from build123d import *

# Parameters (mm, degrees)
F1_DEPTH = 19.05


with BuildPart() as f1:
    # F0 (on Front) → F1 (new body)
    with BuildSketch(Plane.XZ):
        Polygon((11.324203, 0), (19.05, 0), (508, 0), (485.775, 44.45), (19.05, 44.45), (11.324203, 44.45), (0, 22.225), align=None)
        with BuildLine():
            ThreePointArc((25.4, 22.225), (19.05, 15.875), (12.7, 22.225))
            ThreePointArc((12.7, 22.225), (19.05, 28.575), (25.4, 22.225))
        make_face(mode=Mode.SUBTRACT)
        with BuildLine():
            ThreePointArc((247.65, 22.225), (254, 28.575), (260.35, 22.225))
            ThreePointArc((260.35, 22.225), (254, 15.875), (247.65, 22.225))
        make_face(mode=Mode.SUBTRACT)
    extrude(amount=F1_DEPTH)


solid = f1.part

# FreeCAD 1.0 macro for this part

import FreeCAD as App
import Part
import Sketcher
Q = App.Units.Quantity

doc = App.newDocument("Part")
body = doc.addObject("PartDesign::Body", "Body")

sketch1 = body.newObject("Sketcher::SketchObject", "Sketch")
sketch1.AttachmentSupport = (doc.getObject("XZ_Plane"), [""])
sketch1.MapMode = "FlatFace"
sketch1.addGeometry([
    Part.LineSegment(App.Vector(11, 0, 0), App.Vector(508, 0, 0)),
    Part.LineSegment(App.Vector(508, 0, 0), App.Vector(486, 44, 0)),
    Part.LineSegment(App.Vector(486, 44, 0), App.Vector(11, 44, 0)),
    Part.LineSegment(App.Vector(11, 44, 0), App.Vector(0, 22, 0)),
    Part.LineSegment(App.Vector(0, 22, 0), App.Vector(11, 0, 0)),
    Part.Circle(App.Vector(19, 22, 0), App.Vector(0, 0, 1), 6),
    Part.Circle(App.Vector(254, 22, 0), App.Vector(0, 0, 1), 6),
], False)
sketch1.addConstraint([
    Sketcher.Constraint("Coincident", 0, 2, 1, 1),
    Sketcher.Constraint("Coincident", 1, 2, 2, 1),
    Sketcher.Constraint("Coincident", 2, 2, 3, 1),
    Sketcher.Constraint("Coincident", 3, 2, 4, 1),
    Sketcher.Constraint("Coincident", 4, 2, 0, 1),
    Sketcher.Constraint("Horizontal", 0),
    Sketcher.Constraint("Horizontal", 2),
    Sketcher.Constraint("Equal", 5, 6),
    Sketcher.Constraint("PointOnObject", 0, 2, -1),
    Sketcher.Constraint("PointOnObject", 3, 2, -2),
    Sketcher.Constraint("Horizontal", 5, 3, 6, 3),
    Sketcher.Constraint("Horizontal", 6, 3, 3, 2),
    Sketcher.Constraint("Vertical", 2, 2, 4, 2),
    Sketcher.Constraint("Equal", 3, 4),
    Sketcher.Constraint("Diameter", 5, Q("0.5 in")),
    Sketcher.Constraint("DistanceX", -1, 1, 6, 3, Q("10 in")),
    Sketcher.Constraint("DistanceX", -1, 1, 0, 2, Q("20 in")),
    Sketcher.Constraint("Angle", 3, Q("-117 deg")),
    Sketcher.Constraint("DistanceX", -1, 1, 5, 3, Q("0.75 in")),
    Sketcher.Constraint("DistanceY", -1, 1, 1, 2, Q("1.75 in")),
    Sketcher.Constraint("DistanceX", -1, 1, 1, 2, Q("19.125 in")),
])
pad1 = body.newObject("PartDesign::Pad", "Pad")
pad1.Profile = sketch1
pad1.Length = Q("0.75 in")

doc.recompute()
